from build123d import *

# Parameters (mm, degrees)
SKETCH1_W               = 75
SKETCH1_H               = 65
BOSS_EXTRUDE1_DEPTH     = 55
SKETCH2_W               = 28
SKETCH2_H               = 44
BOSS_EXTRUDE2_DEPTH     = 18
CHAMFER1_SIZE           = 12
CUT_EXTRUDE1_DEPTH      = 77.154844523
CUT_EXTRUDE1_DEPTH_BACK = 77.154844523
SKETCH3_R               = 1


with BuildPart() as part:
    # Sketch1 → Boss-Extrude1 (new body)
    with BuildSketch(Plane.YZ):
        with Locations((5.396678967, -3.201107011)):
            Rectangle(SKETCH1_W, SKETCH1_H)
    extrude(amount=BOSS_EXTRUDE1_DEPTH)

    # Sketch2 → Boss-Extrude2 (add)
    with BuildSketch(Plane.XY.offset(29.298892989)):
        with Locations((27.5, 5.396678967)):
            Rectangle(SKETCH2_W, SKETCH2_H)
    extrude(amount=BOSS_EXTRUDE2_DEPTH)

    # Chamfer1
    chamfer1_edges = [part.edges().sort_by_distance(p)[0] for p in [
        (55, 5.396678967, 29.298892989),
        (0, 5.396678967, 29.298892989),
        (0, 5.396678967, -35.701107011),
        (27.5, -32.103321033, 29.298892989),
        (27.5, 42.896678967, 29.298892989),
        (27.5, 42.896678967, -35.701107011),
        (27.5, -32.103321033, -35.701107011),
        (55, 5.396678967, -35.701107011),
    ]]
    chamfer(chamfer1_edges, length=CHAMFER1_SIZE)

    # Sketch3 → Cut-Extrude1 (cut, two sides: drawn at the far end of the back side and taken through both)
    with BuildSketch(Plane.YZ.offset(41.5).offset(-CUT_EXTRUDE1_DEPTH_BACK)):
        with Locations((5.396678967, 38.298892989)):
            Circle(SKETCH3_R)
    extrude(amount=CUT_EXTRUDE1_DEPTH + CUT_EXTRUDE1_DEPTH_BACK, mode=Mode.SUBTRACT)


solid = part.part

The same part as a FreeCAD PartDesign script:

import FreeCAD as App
import Part
import Sketcher

V = App.Vector
Q = App.Units.Quantity


def edges_at(feature, points):
    """Names of the edges that pass closest to the given points."""
    edges = feature.Shape.Edges
    near = lambda p: min(range(len(edges)), key=lambda i: edges[i].distToShape(Part.Vertex(*p))[0])
    return sorted({f"Edge{near(p) + 1}" for p in points})

doc = App.newDocument("Part")
body = doc.addObject("PartDesign::Body", "Body")

# Sketch on YZ plane
sketch1 = doc.addObject("Sketcher::SketchObject", "Sketch")
body.addObject(sketch1)
sketch1.AttachmentSupport = (doc.YZ_Plane, [""])
sketch1.MapMode = "FlatFace"
sketch1.addGeometry([
    Part.LineSegment(V(-32, 29, 0), V(-32, -36, 0)),
    Part.LineSegment(V(-32, -36, 0), V(43, -36, 0)),
    Part.LineSegment(V(43, -36, 0), V(43, 29, 0)),
    Part.LineSegment(V(43, 29, 0), V(-32, 29, 0)),
], False)
sketch1.addConstraint([
    Sketcher.Constraint("Coincident", 0, 2, 1, 1),
    Sketcher.Constraint("Coincident", 1, 2, 2, 1),
    Sketcher.Constraint("Coincident", 2, 2, 3, 1),
    Sketcher.Constraint("Coincident", 3, 2, 0, 1),
    Sketcher.Constraint("Vertical", 0),
    Sketcher.Constraint("Horizontal", 1),
    Sketcher.Constraint("Vertical", 2),
    Sketcher.Constraint("Horizontal", 3),
    Sketcher.Constraint("DistanceX", 1, 1, 1, 2, Q("75 mm")),
    Sketcher.Constraint("DistanceY", 0, 2, 0, 1, Q("65 mm")),
    Sketcher.Constraint("DistanceX", 0, 2, -1, 1, Q("32.103321 mm")),
    Sketcher.Constraint("DistanceY", 0, 2, -1, 1, Q("35.701107 mm")),
])
pad1 = doc.addObject("PartDesign::Pad", "Pad")
body.addObject(pad1)
pad1.Profile = sketch1
pad1.Length = 55

# Sketch on XY plane
sketch2 = doc.addObject("Sketcher::SketchObject", "Sketch001")
body.addObject(sketch2)
sketch2.AttachmentSupport = (doc.XY_Plane, [""])
sketch2.MapMode = "FlatFace"
sketch2.AttachmentOffset = App.Placement(V(0, 0, 29.298893), App.Rotation())
sketch2.addGeometry([
    Part.LineSegment(V(14, 27, 0), V(14, -17, 0)),
    Part.LineSegment(V(14, -17, 0), V(42, -17, 0)),
    Part.LineSegment(V(42, -17, 0), V(42, 27, 0)),
    Part.LineSegment(V(42, 27, 0), V(14, 27, 0)),
], False)
sketch2.addConstraint([
    Sketcher.Constraint("Coincident", 0, 2, 1, 1),
    Sketcher.Constraint("Coincident", 1, 2, 2, 1),
    Sketcher.Constraint("Coincident", 2, 2, 3, 1),
    Sketcher.Constraint("Coincident", 3, 2, 0, 1),
    Sketcher.Constraint("Vertical", 0),
    Sketcher.Constraint("Horizontal", 1),
    Sketcher.Constraint("Vertical", 2),
    Sketcher.Constraint("Horizontal", 3),
    Sketcher.Constraint("DistanceX", 1, 1, 1, 2, Q("28 mm")),
    Sketcher.Constraint("DistanceY", 0, 2, 0, 1, Q("44 mm")),
    Sketcher.Constraint("DistanceX", -1, 1, 0, 2, Q("13.5 mm")),
    Sketcher.Constraint("DistanceY", 0, 2, -1, 1, Q("16.603321 mm")),
])
pad2 = doc.addObject("PartDesign::Pad", "Pad001")
body.addObject(pad2)
pad2.Profile = sketch2
pad2.Length = 18
doc.recompute()

chamfer = doc.addObject("PartDesign::Chamfer", "Chamfer")
body.addObject(chamfer)
chamfer.Base = (pad2, edges_at(pad2, [
    (55, 5.397, 29.299),
    (0, 5.397, 29.299),
    (0, 5.397, -35.701),
    (27.5, -32.103, 29.299),
    (27.5, 42.897, 29.299),
    (27.5, 42.897, -35.701),
    (27.5, -32.103, -35.701),
    (55, 5.397, -35.701),
]))
chamfer.Size = 12

# Sketch on YZ plane
sketch3 = doc.addObject("Sketcher::SketchObject", "Sketch002")
body.addObject(sketch3)
sketch3.AttachmentSupport = (doc.YZ_Plane, [""])
sketch3.MapMode = "FlatFace"
sketch3.AttachmentOffset = App.Placement(V(0, 0, 41.5), App.Rotation())
sketch3.addGeometry(Part.Circle(V(5.4, 38.3, 0), V(0, 0, 1), 1), False)
sketch3.addConstraint([
    Sketcher.Constraint("Diameter", 0, Q("2 mm")),
    Sketcher.Constraint("DistanceX", -1, 1, 0, 3, Q("5.396679 mm")),
    Sketcher.Constraint("DistanceY", -1, 1, 0, 3, Q("38.298893 mm")),
])
pocket1 = doc.addObject("PartDesign::Pocket", "Pocket")
body.addObject(pocket1)
pocket1.Profile = sketch3
pocket1.Type = "ThroughAll"
pocket1.Midplane = True

doc.recompute()
